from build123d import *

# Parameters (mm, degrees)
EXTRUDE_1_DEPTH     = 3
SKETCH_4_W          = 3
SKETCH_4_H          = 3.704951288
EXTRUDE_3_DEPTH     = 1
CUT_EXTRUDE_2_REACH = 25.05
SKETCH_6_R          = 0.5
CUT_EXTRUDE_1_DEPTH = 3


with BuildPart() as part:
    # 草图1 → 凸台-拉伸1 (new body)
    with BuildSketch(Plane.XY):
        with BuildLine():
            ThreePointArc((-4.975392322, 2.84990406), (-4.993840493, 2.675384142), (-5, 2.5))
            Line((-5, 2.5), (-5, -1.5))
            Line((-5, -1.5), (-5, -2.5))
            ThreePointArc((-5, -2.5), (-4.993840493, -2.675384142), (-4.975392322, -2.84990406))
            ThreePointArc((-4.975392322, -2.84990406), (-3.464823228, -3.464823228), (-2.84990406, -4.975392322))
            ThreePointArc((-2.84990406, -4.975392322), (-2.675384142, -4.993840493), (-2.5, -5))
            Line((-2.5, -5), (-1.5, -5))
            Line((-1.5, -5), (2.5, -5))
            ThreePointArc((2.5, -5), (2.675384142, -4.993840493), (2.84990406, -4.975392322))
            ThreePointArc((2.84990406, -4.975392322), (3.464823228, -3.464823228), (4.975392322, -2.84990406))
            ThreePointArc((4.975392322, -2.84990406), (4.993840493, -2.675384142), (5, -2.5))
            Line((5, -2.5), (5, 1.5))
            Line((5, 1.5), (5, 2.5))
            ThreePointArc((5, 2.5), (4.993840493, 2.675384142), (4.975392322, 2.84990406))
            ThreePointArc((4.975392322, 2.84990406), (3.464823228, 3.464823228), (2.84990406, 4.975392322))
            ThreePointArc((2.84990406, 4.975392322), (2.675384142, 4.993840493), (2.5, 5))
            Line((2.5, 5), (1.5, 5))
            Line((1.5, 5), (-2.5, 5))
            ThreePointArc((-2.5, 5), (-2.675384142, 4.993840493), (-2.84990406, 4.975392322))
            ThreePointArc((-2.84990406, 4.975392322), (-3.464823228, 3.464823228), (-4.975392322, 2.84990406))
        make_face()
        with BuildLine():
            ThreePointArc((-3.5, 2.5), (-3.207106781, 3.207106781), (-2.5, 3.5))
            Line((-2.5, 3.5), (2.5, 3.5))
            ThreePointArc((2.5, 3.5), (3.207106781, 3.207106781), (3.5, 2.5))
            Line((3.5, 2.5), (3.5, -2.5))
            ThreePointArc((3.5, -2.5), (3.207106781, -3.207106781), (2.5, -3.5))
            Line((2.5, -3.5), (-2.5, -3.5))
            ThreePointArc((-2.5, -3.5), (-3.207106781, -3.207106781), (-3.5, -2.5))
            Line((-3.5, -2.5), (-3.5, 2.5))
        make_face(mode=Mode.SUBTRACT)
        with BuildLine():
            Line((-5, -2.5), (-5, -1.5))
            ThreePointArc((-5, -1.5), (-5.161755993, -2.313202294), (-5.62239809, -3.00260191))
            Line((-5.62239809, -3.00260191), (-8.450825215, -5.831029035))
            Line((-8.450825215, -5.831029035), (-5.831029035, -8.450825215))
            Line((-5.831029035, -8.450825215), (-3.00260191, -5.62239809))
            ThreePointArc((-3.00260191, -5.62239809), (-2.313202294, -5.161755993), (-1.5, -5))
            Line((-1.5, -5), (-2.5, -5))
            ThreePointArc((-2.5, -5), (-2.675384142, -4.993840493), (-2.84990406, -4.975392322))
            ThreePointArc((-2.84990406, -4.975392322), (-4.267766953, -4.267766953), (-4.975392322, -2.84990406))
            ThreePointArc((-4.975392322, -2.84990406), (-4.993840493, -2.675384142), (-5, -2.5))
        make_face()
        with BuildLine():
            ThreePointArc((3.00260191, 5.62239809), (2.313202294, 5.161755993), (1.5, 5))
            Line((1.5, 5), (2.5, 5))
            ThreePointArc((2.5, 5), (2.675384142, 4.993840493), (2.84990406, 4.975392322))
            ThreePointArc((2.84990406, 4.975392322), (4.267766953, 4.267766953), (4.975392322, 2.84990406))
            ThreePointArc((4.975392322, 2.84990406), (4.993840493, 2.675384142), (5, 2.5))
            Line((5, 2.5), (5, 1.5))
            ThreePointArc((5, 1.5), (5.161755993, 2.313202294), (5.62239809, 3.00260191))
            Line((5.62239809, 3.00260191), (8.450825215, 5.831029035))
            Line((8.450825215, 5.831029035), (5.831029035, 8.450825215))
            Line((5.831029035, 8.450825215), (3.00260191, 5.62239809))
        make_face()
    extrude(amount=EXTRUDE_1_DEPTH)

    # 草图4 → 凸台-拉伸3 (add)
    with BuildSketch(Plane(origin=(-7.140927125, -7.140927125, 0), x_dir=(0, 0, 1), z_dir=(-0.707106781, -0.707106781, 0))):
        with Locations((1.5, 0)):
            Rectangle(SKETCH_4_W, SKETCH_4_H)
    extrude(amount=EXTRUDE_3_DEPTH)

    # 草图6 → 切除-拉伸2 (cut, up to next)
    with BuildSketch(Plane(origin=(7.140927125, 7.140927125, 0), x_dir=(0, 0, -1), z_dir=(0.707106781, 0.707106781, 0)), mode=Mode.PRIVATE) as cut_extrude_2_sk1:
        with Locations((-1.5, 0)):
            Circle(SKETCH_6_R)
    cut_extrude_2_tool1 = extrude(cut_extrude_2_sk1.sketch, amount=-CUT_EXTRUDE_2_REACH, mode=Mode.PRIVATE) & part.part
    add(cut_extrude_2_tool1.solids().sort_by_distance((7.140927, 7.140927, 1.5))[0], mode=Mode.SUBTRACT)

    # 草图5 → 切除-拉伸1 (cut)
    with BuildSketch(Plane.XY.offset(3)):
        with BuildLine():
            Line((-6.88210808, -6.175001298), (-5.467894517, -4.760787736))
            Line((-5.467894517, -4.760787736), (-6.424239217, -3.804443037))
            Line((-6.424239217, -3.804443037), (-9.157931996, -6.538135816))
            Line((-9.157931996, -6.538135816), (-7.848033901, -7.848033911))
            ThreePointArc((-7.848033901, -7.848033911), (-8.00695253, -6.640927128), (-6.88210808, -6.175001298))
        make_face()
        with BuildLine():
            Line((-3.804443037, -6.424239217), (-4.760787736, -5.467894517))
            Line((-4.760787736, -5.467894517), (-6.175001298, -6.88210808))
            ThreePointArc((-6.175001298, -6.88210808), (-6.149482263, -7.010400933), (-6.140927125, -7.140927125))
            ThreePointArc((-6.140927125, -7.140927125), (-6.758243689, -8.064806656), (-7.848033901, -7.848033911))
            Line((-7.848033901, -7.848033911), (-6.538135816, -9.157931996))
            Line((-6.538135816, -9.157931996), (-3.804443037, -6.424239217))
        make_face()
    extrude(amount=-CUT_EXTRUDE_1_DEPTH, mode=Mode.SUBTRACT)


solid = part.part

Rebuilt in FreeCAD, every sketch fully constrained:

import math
import FreeCAD as App
import Part
import Sketcher
Q = App.Units.Quantity

doc = App.newDocument("Part")
params = doc.addObject("Spreadsheet::Sheet", "Params")
for row, (alias, value) in enumerate([
    ("sketch1_radius", "1 mm"),
    ("sketch1_radius2", "2.5 mm"),
    ("sketch1_radius3", "2.1 mm"),
    ("sketch1_width", "4 mm"),
    ("sketch1_width2", "5 mm"),
    ("pad1_length", "3 mm"),
    ("sketch2_width", "3 mm"),
    ("pad2_length", "1 mm"),
    ("sketch3_diameter", "1 mm"),
    ("sketch4_radius", "1 mm"),
    ("sketch4_length", "2 mm"),
    ("pocket2_length", "3 mm"),
], start=1):
    params.set(f"A{row}", alias)
    params.set(f"B{row}", "=" + value)
    params.setAlias(f"B{row}", alias)

body = doc.addObject("PartDesign::Body", "Body")

# Sketch on XY plane
sketch1 = body.newObject("Sketcher::SketchObject", "Sketch")
sketch1.AttachmentSupport = (doc.getObject("XY_Plane"), [""])
sketch1.MapMode = "FlatFace"
sketch1.addGeometry([
    Part.ArcOfCircle(Part.Circle(App.Vector(-2.5, 2.5, 0), App.Vector(0, 0, 1), 2.5), math.radians(171.954374), math.radians(180)),  # 0
    Part.LineSegment(App.Vector(-5, 2.5, 0), App.Vector(-5, -1.5, 0)),  # 1
    Part.ArcOfCircle(Part.Circle(App.Vector(-7.125, -1.5, 0), App.Vector(0, 0, 1), 2.125), math.radians(-45), math.radians(0)),  # 2
    Part.LineSegment(App.Vector(-5.622398, -3.002602, 0), App.Vector(-8.450825, -5.831029, 0)),  # 3
    Part.LineSegment(App.Vector(-8.450825, -5.831029, 0), App.Vector(-5.831029, -8.450825, 0)),  # 4
    Part.LineSegment(App.Vector(-5.831029, -8.450825, 0), App.Vector(-3.002602, -5.622398, 0)),  # 5
    Part.ArcOfCircle(Part.Circle(App.Vector(-1.5, -7.125, 0), App.Vector(0, 0, 1), 2.125), math.radians(90), math.radians(135)),  # 6
    Part.LineSegment(App.Vector(-1.5, -5, 0), App.Vector(2.5, -5, 0)),  # 7
    Part.ArcOfCircle(Part.Circle(App.Vector(2.5, -2.5, 0), App.Vector(0, 0, 1), 2.5), math.radians(-90), math.radians(-81.954374)),  # 8
    Part.ArcOfCircle(Part.Circle(App.Vector(4.949747, -4.949747, 0), App.Vector(0, 0, 1), 2.1), math.radians(89.300296), math.radians(180.699704)),  # 9
    Part.ArcOfCircle(Part.Circle(App.Vector(2.5, -2.5, 0), App.Vector(0, 0, 1), 2.5), math.radians(-8.045626), math.radians(0)),  # 10
    Part.LineSegment(App.Vector(5, -2.5, 0), App.Vector(5, 1.5, 0)),  # 11
    Part.ArcOfCircle(Part.Circle(App.Vector(7.125, 1.5, 0), App.Vector(0, 0, 1), 2.125), math.radians(135), math.radians(180)),  # 12
    Part.LineSegment(App.Vector(5.622398, 3.002602, 0), App.Vector(8.450825, 5.831029, 0)),  # 13
    Part.LineSegment(App.Vector(8.450825, 5.831029, 0), App.Vector(5.831029, 8.450825, 0)),  # 14
    Part.LineSegment(App.Vector(5.831029, 8.450825, 0), App.Vector(3.002602, 5.622398, 0)),  # 15
    Part.ArcOfCircle(Part.Circle(App.Vector(1.5, 7.125, 0), App.Vector(0, 0, 1), 2.125), math.radians(-90), math.radians(-45)),  # 16
    Part.LineSegment(App.Vector(1.5, 5, 0), App.Vector(-2.5, 5, 0)),  # 17
    Part.ArcOfCircle(Part.Circle(App.Vector(-2.5, 2.5, 0), App.Vector(0, 0, 1), 2.5), math.radians(90), math.radians(98.045626)),  # 18
    Part.ArcOfCircle(Part.Circle(App.Vector(-4.949747, 4.949747, 0), App.Vector(0, 0, 1), 2.1), math.radians(-90.699704), math.radians(0.699704)),  # 19
    Part.ArcOfCircle(Part.Circle(App.Vector(4.949747, 4.949747, 0), App.Vector(0, 0, 1), 2.1), math.radians(179.300296), math.radians(270.699704)),  # 20
    Part.ArcOfCircle(Part.Circle(App.Vector(2.5, 2.5, 0), App.Vector(0, 0, 1), 2.5), math.radians(8.045626), math.radians(81.954374)),  # 21
    Part.ArcOfCircle(Part.Circle(App.Vector(-4.949747, -4.949747, 0), App.Vector(0, 0, 1), 2.1), math.radians(-0.699704), math.radians(90.699704)),  # 22
    Part.ArcOfCircle(Part.Circle(App.Vector(-2.5, -2.5, 0), App.Vector(0, 0, 1), 2.5), math.radians(-171.954374), math.radians(-98.045626)),  # 23
    Part.LineSegment(App.Vector(-3.5, -2.5, 0), App.Vector(-3.5, 2.5, 0)),  # 24
    Part.ArcOfCircle(Part.Circle(App.Vector(-2.5, 2.5, 0), App.Vector(0, 0, 1), 1), math.radians(90), math.radians(180)),  # 25
    Part.LineSegment(App.Vector(-2.5, 3.5, 0), App.Vector(2.5, 3.5, 0)),  # 26
    Part.ArcOfCircle(Part.Circle(App.Vector(2.5, 2.5, 0), App.Vector(0, 0, 1), 1), math.radians(0), math.radians(90)),  # 27
    Part.LineSegment(App.Vector(3.5, 2.5, 0), App.Vector(3.5, -2.5, 0)),  # 28
    Part.ArcOfCircle(Part.Circle(App.Vector(2.5, -2.5, 0), App.Vector(0, 0, 1), 1), math.radians(-90), math.radians(0)),  # 29
    Part.LineSegment(App.Vector(2.5, -3.5, 0), App.Vector(-2.5, -3.5, 0)),  # 30
    Part.ArcOfCircle(Part.Circle(App.Vector(-2.5, -2.5, 0), App.Vector(0, 0, 1), 1), math.radians(-180), math.radians(-90)),  # 31
], False)
sketch1.addConstraint([
    Sketcher.Constraint("Tangent", 0, 2, 1, 1),
    Sketcher.Constraint("Tangent", 1, 2, 2, 2),
    Sketcher.Constraint("Tangent", 2, 1, 3, 1),
    Sketcher.Constraint("Coincident", 3, 2, 4, 1),
    Sketcher.Constraint("Coincident", 4, 2, 5, 1),
    Sketcher.Constraint("Tangent", 5, 2, 6, 2),
    Sketcher.Constraint("Tangent", 6, 1, 7, 1),
    Sketcher.Constraint("Tangent", 7, 2, 8, 1),
    Sketcher.Constraint("Coincident", 8, 2, 9, 2),
    Sketcher.Constraint("Coincident", 9, 1, 10, 1),
    Sketcher.Constraint("Tangent", 10, 2, 11, 1),
    Sketcher.Constraint("Tangent", 11, 2, 12, 2),
    Sketcher.Constraint("Tangent", 12, 1, 13, 1),
    Sketcher.Constraint("Coincident", 13, 2, 14, 1),
    Sketcher.Constraint("Coincident", 14, 2, 15, 1),
    Sketcher.Constraint("Tangent", 15, 2, 16, 2),
    Sketcher.Constraint("Tangent", 16, 1, 17, 1),
    Sketcher.Constraint("Tangent", 17, 2, 18, 1),
    Sketcher.Constraint("Coincident", 18, 2, 19, 2),
    Sketcher.Constraint("Coincident", 19, 1, 0, 1),
    Sketcher.Constraint("Coincident", 20, 1, 21, 2),
    Sketcher.Constraint("Coincident", 21, 1, 20, 2),
    Sketcher.Constraint("Coincident", 22, 1, 23, 2),
    Sketcher.Constraint("Coincident", 23, 1, 22, 2),
    Sketcher.Constraint("Tangent", 24, 2, 25, 2),
    Sketcher.Constraint("Tangent", 25, 1, 26, 1),
    Sketcher.Constraint("Tangent", 26, 2, 27, 2),
    Sketcher.Constraint("Tangent", 27, 1, 28, 1),
    Sketcher.Constraint("Tangent", 28, 2, 29, 2),
    Sketcher.Constraint("Tangent", 29, 1, 30, 1),
    Sketcher.Constraint("Tangent", 30, 2, 31, 2),
    Sketcher.Constraint("Tangent", 31, 1, 24, 1),
    Sketcher.Constraint("Vertical", 1),
    Sketcher.Constraint("Horizontal", 7),
    Sketcher.Constraint("Vertical", 11),
    Sketcher.Constraint("Horizontal", 17),
    Sketcher.Constraint("Vertical", 24),
    Sketcher.Constraint("Horizontal", 26),
    Sketcher.Constraint("Vertical", 28),
    Sketcher.Constraint("Horizontal", 30),
    Sketcher.Constraint("Coincident", 10, 3, 8, 3),
    Sketcher.Constraint("Coincident", 18, 3, 0, 3),
    Sketcher.Constraint("Coincident", 25, 3, 0, 3),
    Sketcher.Constraint("Coincident", 27, 3, 21, 3),
    Sketcher.Constraint("Coincident", 29, 3, 8, 3),
    Sketcher.Constraint("Coincident", 31, 3, 23, 3),
    Sketcher.Constraint("Equal", 2, 6),
    Sketcher.Constraint("Equal", 0, 8),
    Sketcher.Constraint("Equal", 8, 10),
    Sketcher.Constraint("Equal", 6, 12),
    Sketcher.Constraint("Equal", 12, 16),
    Sketcher.Constraint("Equal", 10, 18),
    Sketcher.Constraint("Equal", 9, 19),
    Sketcher.Constraint("Equal", 19, 20),
    Sketcher.Constraint("Equal", 18, 21),
    Sketcher.Constraint("Equal", 20, 22),
    Sketcher.Constraint("Equal", 21, 23),
    Sketcher.Constraint("Equal", 25, 27),
    Sketcher.Constraint("Equal", 27, 29),
    Sketcher.Constraint("Equal", 29, 31),
    Sketcher.Constraint("Symmetric", 0, 3, 8, 3, -1, 1),
    Sketcher.Constraint("Symmetric", 9, 3, 19, 3, -1, 1),
    Sketcher.Constraint("Symmetric", 20, 3, 22, 3, -1, 1),
    Sketcher.Constraint("Symmetric", 2, 1, 12, 1, -1, 1),
    Sketcher.Constraint("Symmetric", 4, 2, 14, 2, -1, 1),
    Sketcher.Constraint("Symmetric", 19, 3, 20, 3, -2),
    Sketcher.Constraint("Perpendicular", 3, 4),
    Sketcher.Constraint("Perpendicular", 4, 5),
    Sketcher.Constraint("Perpendicular", 13, 14),
    Sketcher.Constraint("Perpendicular", 14, 15),
    Sketcher.Constraint("Equal", 17, 1),
    Sketcher.Constraint("Equal", 30, 24),
    Sketcher.Constraint("Equal", 3, 5),
    Sketcher.Constraint("Radius", 25, Q("1 mm")),
    Sketcher.Constraint("Radius", 0, Q("2.5 mm")),
    Sketcher.Constraint("Radius", 9, Q("2.1 mm")),
    Sketcher.Constraint("DistanceX", 7, 1, 7, 2, Q("4 mm")),
    Sketcher.Constraint("DistanceX", 26, 1, 26, 2, Q("5 mm")),
    Sketcher.Constraint("Distance", 3, Q("4 mm")),
    Sketcher.Constraint("Radius", 2, Q("2.125 mm")),
    Sketcher.Constraint("DistanceX", 2, 1, 22, 3, Q("0.672651 mm")),
    Sketcher.Constraint("DistanceY", 3, 2, 22, 3, Q("0.881282 mm")),
])
sketch1.setExpression("Constraints[73]", "Params.sketch1_radius")
sketch1.setExpression("Constraints[74]", "Params.sketch1_radius2")
sketch1.setExpression("Constraints[75]", "Params.sketch1_radius3")
sketch1.setExpression("Constraints[76]", "Params.sketch1_width")
sketch1.setExpression("Constraints[77]", "Params.sketch1_width2")
pad1 = body.newObject("PartDesign::Pad", "Pad")
pad1.Profile = sketch1
pad1.setExpression("Length", "Params.pad1_length")

# Sketch on an angled plane
sketch2 = body.newObject("Sketcher::SketchObject", "Sketch001")
sketch2.Placement = App.Placement(App.Vector(-7.140927, -7.140927, 0), App.Rotation(App.Vector(0, 0, 1), App.Vector(-0.707106781, 0.707106781, 0), App.Vector(-0.707106781, -0.707106781, 0), "ZXY"))
sketch2.addGeometry([
    Part.LineSegment(App.Vector(0, 1.852476, 0), App.Vector(0, -1.852476, 0)),
    Part.LineSegment(App.Vector(0, -1.852476, 0), App.Vector(3, -1.852476, 0)),
    Part.LineSegment(App.Vector(3, -1.852476, 0), App.Vector(3, 1.852476, 0)),
    Part.LineSegment(App.Vector(3, 1.852476, 0), App.Vector(0, 1.852476, 0)),
], False)
sketch2.addConstraint([
    Sketcher.Constraint("Coincident", 0, 2, 1, 1),
    Sketcher.Constraint("Coincident", 1, 2, 2, 1),
    Sketcher.Constraint("Coincident", 2, 2, 3, 1),
    Sketcher.Constraint("Coincident", 3, 2, 0, 1),
    Sketcher.Constraint("Vertical", 0),
    Sketcher.Constraint("Horizontal", 1),
    Sketcher.Constraint("Vertical", 2),
    Sketcher.Constraint("Horizontal", 3),
    Sketcher.Constraint("Symmetric", 0, 2, 3, 2, -1, 1),
    Sketcher.Constraint("DistanceX", 1, 1, 1, 2, Q("3 mm")),
    Sketcher.Constraint("DistanceY", 0, 2, 0, 1, Q("3.704951 mm")),
])
sketch2.setExpression("Constraints[9]", "Params.sketch2_width")
pad2 = body.newObject("PartDesign::Pad", "Pad001")
pad2.Profile = sketch2
pad2.setExpression("Length", "Params.pad2_length")

# Sketch on an angled plane
sketch3 = body.newObject("Sketcher::SketchObject", "Sketch002")
sketch3.Placement = App.Placement(App.Vector(7.140927, 7.140927, 0), App.Rotation(App.Vector(0, 0, -1), App.Vector(-0.707106781, 0.707106781, 0), App.Vector(0.707106781, 0.707106781, 0), "ZXY"))
sketch3.addGeometry(Part.Circle(App.Vector(-1.5, 0, 0), App.Vector(0, 0, 1), 0.5), False)
sketch3.addConstraint([
    Sketcher.Constraint("PointOnObject", 0, 3, -1),
    Sketcher.Constraint("Diameter", 0, Q("1 mm")),
    Sketcher.Constraint("DistanceX", 0, 3, -1, 1, Q("1.5 mm")),
])
sketch3.setExpression("Constraints[1]", "Params.sketch3_diameter")
pocket1 = body.newObject("PartDesign::Pocket", "Pocket")
pocket1.Profile = sketch3
pocket1.Type = "UpToFirst"

# Sketch on XY plane
sketch4 = body.newObject("Sketcher::SketchObject", "Sketch003")
sketch4.AttachmentSupport = (doc.getObject("XY_Plane"), [""])
sketch4.MapMode = "FlatFace"
sketch4.AttachmentOffset = App.Placement(App.Vector(0, 0, 3), App.Rotation())
sketch4.addGeometry([
    Part.LineSegment(App.Vector(-6.882108, -6.175001, 0), App.Vector(-5.467895, -4.760788, 0)),  # 0
    Part.LineSegment(App.Vector(-5.467895, -4.760788, 0), App.Vector(-6.424239, -3.804443, 0)),  # 1
    Part.LineSegment(App.Vector(-6.424239, -3.804443, 0), App.Vector(-9.157932, -6.538136, 0)),  # 2
    Part.LineSegment(App.Vector(-9.157932, -6.538136, 0), App.Vector(-7.848034, -7.848034, 0)),  # 3
    Part.ArcOfCircle(Part.Circle(App.Vector(-7.140927, -7.140927, 0), App.Vector(0, 0, 1), 1), math.radians(75), math.radians(225)),  # 4
    Part.LineSegment(App.Vector(-3.804443, -6.424239, 0), App.Vector(-4.760788, -5.467895, 0)),  # 5
    Part.LineSegment(App.Vector(-4.760788, -5.467895, 0), App.Vector(-6.175001, -6.882108, 0)),  # 6
    Part.ArcOfCircle(Part.Circle(App.Vector(-7.140927, -7.140927, 0), App.Vector(0, 0, 1), 1), math.radians(0), math.radians(15)),  # 7
    Part.ArcOfCircle(Part.Circle(App.Vector(-7.140927, -7.140927, 0), App.Vector(0, 0, 1), 1), math.radians(-135), math.radians(0)),  # 8
    Part.LineSegment(App.Vector(-7.848034, -7.848034, 0), App.Vector(-6.538136, -9.157932, 0)),  # 9
    Part.LineSegment(App.Vector(-6.538136, -9.157932, 0), App.Vector(-3.804443, -6.424239, 0)),  # 10
], False)
sketch4.addConstraint([
    Sketcher.Constraint("Coincident", 0, 2, 1, 1),
    Sketcher.Constraint("Coincident", 1, 2, 2, 1),
    Sketcher.Constraint("Coincident", 2, 2, 3, 1),
    Sketcher.Constraint("Tangent", 3, 2, 4, 2),
    Sketcher.Constraint("Coincident", 4, 1, 0, 1),
    Sketcher.Constraint("Coincident", 5, 2, 6, 1),
    Sketcher.Constraint("Coincident", 6, 2, 7, 2),
    Sketcher.Constraint("Tangent", 7, 1, 8, 2),
    Sketcher.Constraint("Tangent", 8, 1, 9, 1),
    Sketcher.Constraint("Coincident", 9, 2, 10, 1),
    Sketcher.Constraint("Coincident", 10, 2, 5, 1),
    Sketcher.Constraint("Coincident", 7, 3, 4, 3),
    Sketcher.Constraint("Coincident", 8, 1, 3, 2),
    Sketcher.Constraint("Equal", 4, 7),
    Sketcher.Constraint("Perpendicular", 0, 1),
    Sketcher.Constraint("Perpendicular", 1, 2),
    Sketcher.Constraint("Perpendicular", 2, 3),
    Sketcher.Constraint("Parallel", 3, 5),
    Sketcher.Constraint("Perpendicular", 5, 6),
    Sketcher.Constraint("Perpendicular", 9, 10),
    Sketcher.Constraint("Horizontal", 8, 3, 7, 1),
    Sketcher.Constraint("Equal", 1, 5),
    Sketcher.Constraint("Equal", 0, 6),
    Sketcher.Constraint("Equal", 3, 9),
    Sketcher.Constraint("Radius", 4, Q("1 mm")),
    Sketcher.Constraint("Angle", 0, Q("45 deg")),
    Sketcher.Constraint("Distance", 0, Q("2 mm")),
    Sketcher.Constraint("DistanceY", 4, 1, -1, 1, Q("6.175001 mm")),
    Sketcher.Constraint("DistanceX", 6, 2, -1, 1, Q("6.175001 mm")),
    Sketcher.Constraint("DistanceX", 2, 2, 3, 2, Q("1.309898 mm")),
    Sketcher.Constraint("DistanceX", 1, 2, -1, 1, Q("6.424239 mm")),
])
sketch4.setExpression("Constraints[24]", "Params.sketch4_radius")
sketch4.setExpression("Constraints[26]", "Params.sketch4_length")
pocket2 = body.newObject("PartDesign::Pocket", "Pocket001")
pocket2.Profile = sketch4
pocket2.setExpression("Length", "Params.pocket2_length")

doc.recompute()
